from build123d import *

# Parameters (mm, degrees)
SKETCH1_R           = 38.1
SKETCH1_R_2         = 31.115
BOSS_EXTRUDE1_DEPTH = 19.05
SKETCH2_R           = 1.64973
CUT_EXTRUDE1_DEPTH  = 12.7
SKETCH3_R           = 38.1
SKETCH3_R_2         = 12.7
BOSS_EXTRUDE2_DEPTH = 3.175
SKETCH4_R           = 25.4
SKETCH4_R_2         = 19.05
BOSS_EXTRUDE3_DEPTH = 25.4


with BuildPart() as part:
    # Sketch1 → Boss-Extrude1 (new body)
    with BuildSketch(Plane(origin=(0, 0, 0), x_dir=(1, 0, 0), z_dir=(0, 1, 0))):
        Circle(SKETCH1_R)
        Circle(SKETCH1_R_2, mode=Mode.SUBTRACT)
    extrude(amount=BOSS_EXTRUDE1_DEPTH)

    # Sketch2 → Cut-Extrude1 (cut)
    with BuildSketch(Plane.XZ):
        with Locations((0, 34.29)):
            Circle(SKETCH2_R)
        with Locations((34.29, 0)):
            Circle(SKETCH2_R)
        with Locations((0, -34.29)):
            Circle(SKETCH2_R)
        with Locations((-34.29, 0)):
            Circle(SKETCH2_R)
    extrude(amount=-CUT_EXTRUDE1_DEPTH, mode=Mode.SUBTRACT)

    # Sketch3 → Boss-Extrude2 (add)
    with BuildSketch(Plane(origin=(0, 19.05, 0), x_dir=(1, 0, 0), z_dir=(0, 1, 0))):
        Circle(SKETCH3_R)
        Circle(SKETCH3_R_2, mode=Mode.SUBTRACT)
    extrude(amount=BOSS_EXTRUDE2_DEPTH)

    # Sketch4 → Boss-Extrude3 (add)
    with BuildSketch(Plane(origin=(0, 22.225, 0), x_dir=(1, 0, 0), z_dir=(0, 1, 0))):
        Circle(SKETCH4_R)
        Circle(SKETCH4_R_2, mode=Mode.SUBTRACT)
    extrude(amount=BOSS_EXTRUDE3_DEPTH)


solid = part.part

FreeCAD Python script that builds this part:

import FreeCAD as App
import Part
import Sketcher
Q = App.Units.Quantity

doc = App.newDocument("Part")
body = doc.addObject("PartDesign::Body", "Body")

# Sketch on XZ plane
sketch1 = body.newObject("Sketcher::SketchObject", "Sketch")
sketch1.AttachmentSupport = (doc.getObject("XZ_Plane"), [""])
sketch1.MapMode = "FlatFace"
sketch1.addGeometry([
    Part.Circle(App.Vector(0, 0, 0), App.Vector(0, 0, 1), 38),
    Part.Circle(App.Vector(0, 0, 0), App.Vector(0, 0, 1), 31),
], False)
sketch1.addConstraint([
    Sketcher.Constraint("Coincident", 0, 3, -1, 1),
    Sketcher.Constraint("Coincident", 1, 3, -1, 1),
    Sketcher.Constraint("Diameter", 0, Q("3 in")),
    Sketcher.Constraint("Diameter", 1, Q("2.45 in")),
])
pad1 = body.newObject("PartDesign::Pad", "Pad")
pad1.Profile = sketch1
pad1.Length = Q("0.75 in")
pad1.Reversed = True

# Sketch on XZ plane
sketch2 = body.newObject("Sketcher::SketchObject", "Sketch001")
sketch2.AttachmentSupport = (doc.getObject("XZ_Plane"), [""])
sketch2.MapMode = "FlatFace"
sketch2.addGeometry([
    Part.Circle(App.Vector(0, 34.3, 0), App.Vector(0, 0, 1), 1.6),
    Part.Circle(App.Vector(34.3, 0, 0), App.Vector(0, 0, 1), 1.6),
    Part.Circle(App.Vector(0, -34.3, 0), App.Vector(0, 0, 1), 1.6),
    Part.Circle(App.Vector(-34.3, 0, 0), App.Vector(0, 0, 1), 1.6),
], False)
sketch2.addConstraint([
    Sketcher.Constraint("Equal", 0, 1),
    Sketcher.Constraint("Equal", 1, 2),
    Sketcher.Constraint("Equal", 2, 3),
    Sketcher.Constraint("Symmetric", 0, 3, 2, 3, -1, 1),
    Sketcher.Constraint("Symmetric", 1, 3, 3, 3, -1, 1),
    Sketcher.Constraint("PointOnObject", 0, 3, -2),
    Sketcher.Constraint("PointOnObject", 1, 3, -1),
    Sketcher.Constraint("Diameter", 0, Q("0.1299 in")),
    Sketcher.Constraint("DistanceY", 2, 3, 0, 3, Q("2.7 in")),
    Sketcher.Constraint("DistanceX", 3, 3, 1, 3, Q("2.7 in")),
])
pocket1 = body.newObject("PartDesign::Pocket", "Pocket")
pocket1.Profile = sketch2
pocket1.Length = Q("0.5 in")

# Sketch on XZ plane
sketch3 = body.newObject("Sketcher::SketchObject", "Sketch002")
sketch3.AttachmentSupport = (doc.getObject("XZ_Plane"), [""])
sketch3.MapMode = "FlatFace"
sketch3.AttachmentOffset = App.Placement(App.Vector(0, 0, -0.75 * 25.4), App.Rotation())
sketch3.addGeometry([
    Part.Circle(App.Vector(0, 0, 0), App.Vector(0, 0, 1), 38),
    Part.Circle(App.Vector(0, 0, 0), App.Vector(0, 0, 1), 13),
], False)
sketch3.addConstraint([
    Sketcher.Constraint("Coincident", 0, 3, -1, 1),
    Sketcher.Constraint("Coincident", 1, 3, -1, 1),
    Sketcher.Constraint("Diameter", 0, Q("3 in")),
    Sketcher.Constraint("Diameter", 1, Q("1 in")),
])
pad2 = body.newObject("PartDesign::Pad", "Pad001")
pad2.Profile = sketch3
pad2.Length = Q("0.125 in")
pad2.Reversed = True

# Sketch on XZ plane
sketch4 = body.newObject("Sketcher::SketchObject", "Sketch003")
sketch4.AttachmentSupport = (doc.getObject("XZ_Plane"), [""])
sketch4.MapMode = "FlatFace"
sketch4.AttachmentOffset = App.Placement(App.Vector(0, 0, -0.875 * 25.4), App.Rotation())
sketch4.addGeometry([
    Part.Circle(App.Vector(0, 0, 0), App.Vector(0, 0, 1), 25),
    Part.Circle(App.Vector(0, 0, 0), App.Vector(0, 0, 1), 19),
], False)
sketch4.addConstraint([
    Sketcher.Constraint("Coincident", 0, 3, -1, 1),
    Sketcher.Constraint("Coincident", 1, 3, -1, 1),
    Sketcher.Constraint("Diameter", 0, Q("2 in")),
    Sketcher.Constraint("Diameter", 1, Q("1.5 in")),
])
pad3 = body.newObject("PartDesign::Pad", "Pad002")
pad3.Profile = sketch4
pad3.Length = Q("1 in")
pad3.Reversed = True

doc.recompute()
